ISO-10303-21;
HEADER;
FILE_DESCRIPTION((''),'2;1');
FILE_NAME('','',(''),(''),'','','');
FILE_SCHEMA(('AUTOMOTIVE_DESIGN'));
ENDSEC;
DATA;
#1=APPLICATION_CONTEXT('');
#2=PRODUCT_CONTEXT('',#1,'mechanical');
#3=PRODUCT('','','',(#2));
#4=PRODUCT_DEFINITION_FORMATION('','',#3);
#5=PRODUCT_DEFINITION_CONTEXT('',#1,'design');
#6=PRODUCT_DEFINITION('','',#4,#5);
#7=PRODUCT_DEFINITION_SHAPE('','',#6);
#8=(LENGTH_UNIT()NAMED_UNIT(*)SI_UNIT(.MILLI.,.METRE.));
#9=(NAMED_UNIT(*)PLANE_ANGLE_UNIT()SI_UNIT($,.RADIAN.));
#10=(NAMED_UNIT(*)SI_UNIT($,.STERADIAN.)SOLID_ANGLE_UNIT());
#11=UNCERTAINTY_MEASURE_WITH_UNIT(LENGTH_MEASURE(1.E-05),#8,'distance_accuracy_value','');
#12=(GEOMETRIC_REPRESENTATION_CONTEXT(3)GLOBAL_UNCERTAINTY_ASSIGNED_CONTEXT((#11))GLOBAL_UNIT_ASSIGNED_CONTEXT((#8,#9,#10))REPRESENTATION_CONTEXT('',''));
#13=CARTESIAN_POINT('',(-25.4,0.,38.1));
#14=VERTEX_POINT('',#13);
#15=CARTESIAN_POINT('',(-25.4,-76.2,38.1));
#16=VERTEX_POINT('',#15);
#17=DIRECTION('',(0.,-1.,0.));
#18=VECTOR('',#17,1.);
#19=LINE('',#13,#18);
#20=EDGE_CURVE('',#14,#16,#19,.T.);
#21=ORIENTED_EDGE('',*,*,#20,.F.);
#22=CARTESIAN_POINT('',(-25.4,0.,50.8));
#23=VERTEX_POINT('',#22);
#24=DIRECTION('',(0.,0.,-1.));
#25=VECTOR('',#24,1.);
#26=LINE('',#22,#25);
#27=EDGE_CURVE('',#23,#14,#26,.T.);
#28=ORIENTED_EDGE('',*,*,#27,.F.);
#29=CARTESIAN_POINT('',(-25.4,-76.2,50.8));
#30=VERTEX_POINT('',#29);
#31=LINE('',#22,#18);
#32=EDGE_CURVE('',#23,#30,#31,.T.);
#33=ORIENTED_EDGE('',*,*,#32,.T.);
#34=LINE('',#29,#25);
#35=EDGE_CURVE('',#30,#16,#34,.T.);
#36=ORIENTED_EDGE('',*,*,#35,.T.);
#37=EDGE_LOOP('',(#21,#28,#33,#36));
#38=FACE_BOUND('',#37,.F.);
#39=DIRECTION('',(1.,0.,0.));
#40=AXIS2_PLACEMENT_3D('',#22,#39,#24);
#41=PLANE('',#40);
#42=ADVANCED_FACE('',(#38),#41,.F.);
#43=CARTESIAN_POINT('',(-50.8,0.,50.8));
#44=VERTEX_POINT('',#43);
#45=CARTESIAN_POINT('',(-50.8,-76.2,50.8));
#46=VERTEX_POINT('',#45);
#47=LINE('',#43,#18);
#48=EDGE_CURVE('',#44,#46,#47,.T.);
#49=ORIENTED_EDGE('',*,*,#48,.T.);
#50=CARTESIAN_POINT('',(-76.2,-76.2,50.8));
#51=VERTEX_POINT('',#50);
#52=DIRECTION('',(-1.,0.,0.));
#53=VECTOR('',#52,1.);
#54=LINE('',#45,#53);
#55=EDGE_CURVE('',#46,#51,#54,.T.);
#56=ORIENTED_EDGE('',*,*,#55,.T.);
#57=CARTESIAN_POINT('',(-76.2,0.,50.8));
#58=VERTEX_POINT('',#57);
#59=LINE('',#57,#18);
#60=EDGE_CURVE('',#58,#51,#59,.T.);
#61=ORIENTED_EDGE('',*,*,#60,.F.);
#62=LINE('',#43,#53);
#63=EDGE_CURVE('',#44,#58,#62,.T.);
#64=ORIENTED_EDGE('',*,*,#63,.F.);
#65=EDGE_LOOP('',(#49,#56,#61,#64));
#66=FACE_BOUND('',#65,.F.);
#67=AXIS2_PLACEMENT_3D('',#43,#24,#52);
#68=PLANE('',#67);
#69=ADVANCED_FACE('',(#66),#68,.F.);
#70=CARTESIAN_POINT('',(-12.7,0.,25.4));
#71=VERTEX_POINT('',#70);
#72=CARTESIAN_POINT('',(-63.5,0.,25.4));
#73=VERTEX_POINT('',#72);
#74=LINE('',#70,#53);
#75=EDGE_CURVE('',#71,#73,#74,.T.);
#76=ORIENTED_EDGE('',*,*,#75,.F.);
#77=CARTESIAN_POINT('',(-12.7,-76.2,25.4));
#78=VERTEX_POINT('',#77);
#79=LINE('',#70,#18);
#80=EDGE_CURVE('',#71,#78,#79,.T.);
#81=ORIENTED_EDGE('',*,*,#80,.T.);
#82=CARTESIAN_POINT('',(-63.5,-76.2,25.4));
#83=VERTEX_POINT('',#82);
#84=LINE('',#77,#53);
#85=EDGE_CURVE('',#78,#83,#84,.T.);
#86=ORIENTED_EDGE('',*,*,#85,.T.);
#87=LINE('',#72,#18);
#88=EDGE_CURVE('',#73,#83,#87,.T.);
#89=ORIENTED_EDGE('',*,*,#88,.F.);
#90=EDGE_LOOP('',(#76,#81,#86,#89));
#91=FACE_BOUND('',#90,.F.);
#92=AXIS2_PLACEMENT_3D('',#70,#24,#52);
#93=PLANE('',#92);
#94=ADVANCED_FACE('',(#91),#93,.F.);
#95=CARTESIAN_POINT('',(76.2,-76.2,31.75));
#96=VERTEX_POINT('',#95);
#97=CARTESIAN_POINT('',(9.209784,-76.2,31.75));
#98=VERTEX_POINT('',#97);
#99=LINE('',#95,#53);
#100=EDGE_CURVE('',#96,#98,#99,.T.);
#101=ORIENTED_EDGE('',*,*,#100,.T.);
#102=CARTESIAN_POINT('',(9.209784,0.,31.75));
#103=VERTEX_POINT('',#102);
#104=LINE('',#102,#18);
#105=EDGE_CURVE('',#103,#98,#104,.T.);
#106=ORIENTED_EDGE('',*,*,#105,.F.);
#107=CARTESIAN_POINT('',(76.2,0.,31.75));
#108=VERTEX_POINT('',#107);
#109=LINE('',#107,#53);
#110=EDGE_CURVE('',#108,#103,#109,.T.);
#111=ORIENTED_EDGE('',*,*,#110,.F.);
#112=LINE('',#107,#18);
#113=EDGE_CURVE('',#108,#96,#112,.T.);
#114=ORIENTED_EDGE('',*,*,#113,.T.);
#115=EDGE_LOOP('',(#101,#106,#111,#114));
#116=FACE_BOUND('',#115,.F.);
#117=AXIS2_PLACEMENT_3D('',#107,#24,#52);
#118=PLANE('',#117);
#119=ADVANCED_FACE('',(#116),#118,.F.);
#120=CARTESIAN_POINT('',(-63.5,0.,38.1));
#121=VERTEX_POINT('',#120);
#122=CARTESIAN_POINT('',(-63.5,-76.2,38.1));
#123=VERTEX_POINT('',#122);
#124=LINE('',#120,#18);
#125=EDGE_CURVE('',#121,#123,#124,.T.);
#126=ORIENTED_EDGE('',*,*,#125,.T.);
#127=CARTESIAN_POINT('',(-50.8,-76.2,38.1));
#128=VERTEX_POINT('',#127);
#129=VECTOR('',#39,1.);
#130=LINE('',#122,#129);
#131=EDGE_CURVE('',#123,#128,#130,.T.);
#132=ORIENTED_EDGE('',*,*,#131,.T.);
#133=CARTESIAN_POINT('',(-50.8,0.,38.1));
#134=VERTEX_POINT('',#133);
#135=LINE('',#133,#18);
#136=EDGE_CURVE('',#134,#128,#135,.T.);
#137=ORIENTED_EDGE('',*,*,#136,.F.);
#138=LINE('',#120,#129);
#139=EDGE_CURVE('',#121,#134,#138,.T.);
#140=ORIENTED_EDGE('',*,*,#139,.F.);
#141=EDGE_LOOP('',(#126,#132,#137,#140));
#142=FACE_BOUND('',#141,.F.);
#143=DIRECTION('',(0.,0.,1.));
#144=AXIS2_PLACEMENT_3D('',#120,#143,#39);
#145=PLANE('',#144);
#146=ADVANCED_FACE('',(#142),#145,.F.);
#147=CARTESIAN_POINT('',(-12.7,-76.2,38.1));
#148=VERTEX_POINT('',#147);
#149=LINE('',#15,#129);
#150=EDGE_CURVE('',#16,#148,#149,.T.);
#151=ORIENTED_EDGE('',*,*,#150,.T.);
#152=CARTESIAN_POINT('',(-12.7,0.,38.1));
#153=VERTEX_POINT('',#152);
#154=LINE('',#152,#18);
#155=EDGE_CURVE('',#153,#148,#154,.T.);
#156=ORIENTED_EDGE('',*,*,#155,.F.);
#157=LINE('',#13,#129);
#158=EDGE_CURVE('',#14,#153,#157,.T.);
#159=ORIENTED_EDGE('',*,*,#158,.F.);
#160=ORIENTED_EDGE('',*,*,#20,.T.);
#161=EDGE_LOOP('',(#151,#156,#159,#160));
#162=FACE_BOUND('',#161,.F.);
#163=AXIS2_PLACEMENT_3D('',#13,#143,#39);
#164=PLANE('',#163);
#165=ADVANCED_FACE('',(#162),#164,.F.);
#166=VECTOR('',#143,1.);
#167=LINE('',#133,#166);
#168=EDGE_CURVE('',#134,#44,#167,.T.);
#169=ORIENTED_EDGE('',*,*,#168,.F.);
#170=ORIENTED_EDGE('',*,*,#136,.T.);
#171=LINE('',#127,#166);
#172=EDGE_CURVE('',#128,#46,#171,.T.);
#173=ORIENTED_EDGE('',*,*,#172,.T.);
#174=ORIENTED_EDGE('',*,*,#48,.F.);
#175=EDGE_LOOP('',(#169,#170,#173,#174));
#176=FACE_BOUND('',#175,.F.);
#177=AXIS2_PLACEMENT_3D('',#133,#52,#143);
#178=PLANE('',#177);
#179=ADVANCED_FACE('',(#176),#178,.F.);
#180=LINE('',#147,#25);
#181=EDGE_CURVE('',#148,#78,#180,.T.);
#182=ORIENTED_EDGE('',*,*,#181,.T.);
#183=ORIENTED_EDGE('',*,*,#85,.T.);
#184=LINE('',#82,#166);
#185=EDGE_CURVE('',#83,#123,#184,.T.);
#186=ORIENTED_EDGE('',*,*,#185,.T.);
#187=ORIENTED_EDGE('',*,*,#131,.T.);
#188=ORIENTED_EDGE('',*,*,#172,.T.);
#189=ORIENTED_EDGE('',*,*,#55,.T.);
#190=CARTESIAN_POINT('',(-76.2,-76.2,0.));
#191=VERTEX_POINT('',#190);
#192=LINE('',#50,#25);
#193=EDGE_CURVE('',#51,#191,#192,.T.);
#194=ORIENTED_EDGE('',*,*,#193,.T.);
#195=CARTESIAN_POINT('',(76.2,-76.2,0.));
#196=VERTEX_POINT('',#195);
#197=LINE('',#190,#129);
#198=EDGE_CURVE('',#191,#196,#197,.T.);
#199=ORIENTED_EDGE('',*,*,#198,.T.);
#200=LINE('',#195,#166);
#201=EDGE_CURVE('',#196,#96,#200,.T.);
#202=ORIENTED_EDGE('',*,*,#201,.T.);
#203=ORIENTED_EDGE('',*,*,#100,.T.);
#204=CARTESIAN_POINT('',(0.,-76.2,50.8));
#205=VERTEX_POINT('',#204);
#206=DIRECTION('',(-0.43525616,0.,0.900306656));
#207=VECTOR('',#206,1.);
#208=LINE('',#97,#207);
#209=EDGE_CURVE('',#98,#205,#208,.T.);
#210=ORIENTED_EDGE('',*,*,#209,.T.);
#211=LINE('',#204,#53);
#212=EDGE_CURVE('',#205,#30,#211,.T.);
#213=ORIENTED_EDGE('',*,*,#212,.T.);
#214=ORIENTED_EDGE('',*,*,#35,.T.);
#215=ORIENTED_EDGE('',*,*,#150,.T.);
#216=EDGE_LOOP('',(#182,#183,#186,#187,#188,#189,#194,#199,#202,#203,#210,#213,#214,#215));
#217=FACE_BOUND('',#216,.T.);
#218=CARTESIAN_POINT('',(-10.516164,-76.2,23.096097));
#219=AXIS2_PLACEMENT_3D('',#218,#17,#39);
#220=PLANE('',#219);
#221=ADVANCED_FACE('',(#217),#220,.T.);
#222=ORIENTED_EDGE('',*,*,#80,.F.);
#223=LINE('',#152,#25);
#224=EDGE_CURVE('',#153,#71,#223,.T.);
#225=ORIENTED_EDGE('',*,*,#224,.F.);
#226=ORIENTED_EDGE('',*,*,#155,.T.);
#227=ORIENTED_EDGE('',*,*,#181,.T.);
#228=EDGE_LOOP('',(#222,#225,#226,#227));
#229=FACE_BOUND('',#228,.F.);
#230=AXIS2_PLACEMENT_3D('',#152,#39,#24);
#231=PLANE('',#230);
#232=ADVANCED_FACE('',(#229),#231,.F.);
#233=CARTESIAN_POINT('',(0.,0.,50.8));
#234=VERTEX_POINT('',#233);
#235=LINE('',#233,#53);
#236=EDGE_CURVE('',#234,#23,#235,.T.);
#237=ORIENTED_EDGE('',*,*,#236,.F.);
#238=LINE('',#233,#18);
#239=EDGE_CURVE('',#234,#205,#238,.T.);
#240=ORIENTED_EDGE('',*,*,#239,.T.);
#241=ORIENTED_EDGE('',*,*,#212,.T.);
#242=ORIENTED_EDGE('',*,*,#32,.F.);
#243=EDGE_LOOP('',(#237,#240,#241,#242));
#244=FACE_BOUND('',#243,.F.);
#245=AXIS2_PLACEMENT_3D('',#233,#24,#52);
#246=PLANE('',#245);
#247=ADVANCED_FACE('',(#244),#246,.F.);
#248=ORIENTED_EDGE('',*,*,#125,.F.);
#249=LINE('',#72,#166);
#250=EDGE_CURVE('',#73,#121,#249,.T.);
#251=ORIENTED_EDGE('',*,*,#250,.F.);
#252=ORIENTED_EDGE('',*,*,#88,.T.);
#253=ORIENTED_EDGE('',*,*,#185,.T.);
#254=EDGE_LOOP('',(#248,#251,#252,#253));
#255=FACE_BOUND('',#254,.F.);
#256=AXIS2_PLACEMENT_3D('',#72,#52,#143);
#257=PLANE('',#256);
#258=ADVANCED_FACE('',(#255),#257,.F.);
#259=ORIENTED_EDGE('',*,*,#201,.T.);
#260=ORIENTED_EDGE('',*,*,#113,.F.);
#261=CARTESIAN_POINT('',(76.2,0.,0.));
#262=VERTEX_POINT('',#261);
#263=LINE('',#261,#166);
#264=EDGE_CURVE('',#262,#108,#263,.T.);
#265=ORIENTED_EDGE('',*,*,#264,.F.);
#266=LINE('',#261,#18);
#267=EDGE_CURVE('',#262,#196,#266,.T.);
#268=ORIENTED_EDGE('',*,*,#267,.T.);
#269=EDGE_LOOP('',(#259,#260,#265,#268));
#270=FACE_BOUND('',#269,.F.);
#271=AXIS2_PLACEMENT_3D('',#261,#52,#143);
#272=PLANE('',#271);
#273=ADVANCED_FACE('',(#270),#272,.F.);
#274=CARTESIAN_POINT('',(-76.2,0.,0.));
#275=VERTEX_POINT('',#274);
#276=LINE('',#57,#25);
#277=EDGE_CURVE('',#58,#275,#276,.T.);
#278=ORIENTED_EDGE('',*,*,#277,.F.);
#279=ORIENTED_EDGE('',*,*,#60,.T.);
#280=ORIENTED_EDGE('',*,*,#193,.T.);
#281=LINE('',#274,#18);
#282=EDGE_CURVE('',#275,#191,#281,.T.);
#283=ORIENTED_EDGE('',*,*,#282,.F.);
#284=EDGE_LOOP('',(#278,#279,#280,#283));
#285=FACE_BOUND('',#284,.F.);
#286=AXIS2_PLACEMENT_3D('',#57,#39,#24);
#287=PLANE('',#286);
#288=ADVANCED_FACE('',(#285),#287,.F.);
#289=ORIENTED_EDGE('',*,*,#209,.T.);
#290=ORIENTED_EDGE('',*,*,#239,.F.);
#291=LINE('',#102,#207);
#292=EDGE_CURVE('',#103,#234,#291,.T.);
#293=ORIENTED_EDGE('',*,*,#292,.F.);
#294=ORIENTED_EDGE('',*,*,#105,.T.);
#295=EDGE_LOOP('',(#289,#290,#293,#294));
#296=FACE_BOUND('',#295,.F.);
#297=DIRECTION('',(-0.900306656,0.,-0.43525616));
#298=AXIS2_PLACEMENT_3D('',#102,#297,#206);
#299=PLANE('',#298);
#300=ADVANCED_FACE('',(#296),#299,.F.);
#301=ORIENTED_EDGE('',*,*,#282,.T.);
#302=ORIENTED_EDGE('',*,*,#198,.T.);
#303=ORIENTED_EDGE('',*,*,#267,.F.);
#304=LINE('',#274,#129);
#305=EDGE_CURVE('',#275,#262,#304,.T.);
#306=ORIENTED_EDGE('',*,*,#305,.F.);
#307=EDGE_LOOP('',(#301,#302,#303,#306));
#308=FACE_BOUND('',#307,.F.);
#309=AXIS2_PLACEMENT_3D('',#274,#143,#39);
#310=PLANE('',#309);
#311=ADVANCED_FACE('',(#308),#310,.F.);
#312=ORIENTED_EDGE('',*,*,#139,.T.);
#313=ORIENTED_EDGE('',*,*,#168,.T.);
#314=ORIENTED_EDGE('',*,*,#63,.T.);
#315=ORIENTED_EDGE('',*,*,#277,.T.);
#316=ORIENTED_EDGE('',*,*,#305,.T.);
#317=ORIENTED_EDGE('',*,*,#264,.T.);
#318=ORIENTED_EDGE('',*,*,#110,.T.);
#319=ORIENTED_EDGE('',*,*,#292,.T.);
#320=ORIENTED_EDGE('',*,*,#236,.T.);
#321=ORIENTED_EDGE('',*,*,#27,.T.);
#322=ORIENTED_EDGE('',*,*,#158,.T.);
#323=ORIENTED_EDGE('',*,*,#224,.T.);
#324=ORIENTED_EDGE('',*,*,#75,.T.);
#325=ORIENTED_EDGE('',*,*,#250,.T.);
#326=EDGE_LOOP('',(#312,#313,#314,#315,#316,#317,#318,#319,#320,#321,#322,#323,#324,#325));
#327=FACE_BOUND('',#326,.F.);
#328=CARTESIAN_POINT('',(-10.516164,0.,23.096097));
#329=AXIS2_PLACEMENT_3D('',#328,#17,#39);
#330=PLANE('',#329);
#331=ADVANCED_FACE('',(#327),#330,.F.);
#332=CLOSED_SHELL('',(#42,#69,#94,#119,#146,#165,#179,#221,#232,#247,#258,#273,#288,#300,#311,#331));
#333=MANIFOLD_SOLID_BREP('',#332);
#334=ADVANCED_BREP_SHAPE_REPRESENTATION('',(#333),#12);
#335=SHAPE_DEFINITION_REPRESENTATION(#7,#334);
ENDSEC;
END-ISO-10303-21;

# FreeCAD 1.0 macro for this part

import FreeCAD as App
import Part
import Sketcher
from FreeCAD import Vector
Q = App.Units.Quantity


def add_polygon(sketch, points):
    """Adds a closed chain of lines whose ends are joined by coincident constraints."""
    first, n = sketch.GeometryCount, len(points)
    for a, b in zip(points, points[1:] + points[:1]):
        sketch.addGeometry(Part.LineSegment(App.Vector(*a, 0), App.Vector(*b, 0)), False)
    for i in range(n):
        sketch.addConstraint(Sketcher.Constraint("Coincident", first + i, 2, first + (i + 1) % n, 1))

doc = App.newDocument("Part")
body = doc.addObject("PartDesign::Body", "Body")

# Sketch on XZ plane
sketch1 = body.newObject("Sketcher::SketchObject", "Sketch")
sketch1.AttachmentSupport = (doc.getObject("XZ_Plane"), [""])
sketch1.MapMode = "FlatFace"
add_polygon(sketch1, [(-76, 0), (76, 0), (76, 32), (9, 32), (0, 51), (-25, 51), (-25, 38), (-13, 38), (-13, 25), (-64, 25), (-64, 38), (-51, 38), (-51, 51), (-76, 51)])  # lines 0-13
sketch1.addConstraint(Sketcher.Constraint("Horizontal", 0))
sketch1.addConstraint(Sketcher.Constraint("Vertical", 1))
sketch1.addConstraint(Sketcher.Constraint("Horizontal", 2))
sketch1.addConstraint(Sketcher.Constraint("Horizontal", 4))
sketch1.addConstraint(Sketcher.Constraint("Vertical", 5))
sketch1.addConstraint(Sketcher.Constraint("Horizontal", 6))
sketch1.addConstraint(Sketcher.Constraint("Vertical", 7))
sketch1.addConstraint(Sketcher.Constraint("Horizontal", 8))
sketch1.addConstraint(Sketcher.Constraint("Vertical", 9))
sketch1.addConstraint(Sketcher.Constraint("Horizontal", 10))
sketch1.addConstraint(Sketcher.Constraint("Vertical", 11))
sketch1.addConstraint(Sketcher.Constraint("Horizontal", 12))
sketch1.addConstraint(Sketcher.Constraint("Vertical", 13))
sketch1.addConstraint(Sketcher.Constraint("Symmetric", 0, 2, 13, 2, -1, 1))
sketch1.addConstraint(Sketcher.Constraint("PointOnObject", 3, 2, -2))
sketch1.addConstraint(Sketcher.Constraint("Horizontal", 6, 2, 9, 2))
sketch1.addConstraint(Sketcher.Constraint("Horizontal", 4, 2, 11, 2))
sketch1.addConstraint(Sketcher.Constraint("Equal", 6, 10))
sketch1.addConstraint(Sketcher.Constraint("Equal", 4, 12))
sketch1.addConstraint(Sketcher.Constraint("Equal", 10, 5))
sketch1.addConstraint(Sketcher.Constraint("Equal", 5, 7))
sketch1.addConstraint(Sketcher.Constraint("Equal", 8, 13))
sketch1.addConstraint(Sketcher.Constraint("DistanceX", 0, 1, 0, 2, Q("6 in")))
sketch1.addConstraint(Sketcher.Constraint("DistanceX", 4, 2, 4, 1, Q("1 in")))
sketch1.addConstraint(Sketcher.Constraint("DistanceX", 8, 2, 8, 1, Q("2 in")))
sketch1.addConstraint(Sketcher.Constraint("DistanceY", 1, 1, 1, 2, Q("1.25 in")))
sketch1.addConstraint(Sketcher.Constraint("DistanceX", 2, 2, 2, 1, Q("66.990216 mm")))
pad1 = body.newObject("PartDesign::Pad", "Pad")
pad1.Profile = sketch1
pad1.Length = Q("3 in")

doc.recompute()
